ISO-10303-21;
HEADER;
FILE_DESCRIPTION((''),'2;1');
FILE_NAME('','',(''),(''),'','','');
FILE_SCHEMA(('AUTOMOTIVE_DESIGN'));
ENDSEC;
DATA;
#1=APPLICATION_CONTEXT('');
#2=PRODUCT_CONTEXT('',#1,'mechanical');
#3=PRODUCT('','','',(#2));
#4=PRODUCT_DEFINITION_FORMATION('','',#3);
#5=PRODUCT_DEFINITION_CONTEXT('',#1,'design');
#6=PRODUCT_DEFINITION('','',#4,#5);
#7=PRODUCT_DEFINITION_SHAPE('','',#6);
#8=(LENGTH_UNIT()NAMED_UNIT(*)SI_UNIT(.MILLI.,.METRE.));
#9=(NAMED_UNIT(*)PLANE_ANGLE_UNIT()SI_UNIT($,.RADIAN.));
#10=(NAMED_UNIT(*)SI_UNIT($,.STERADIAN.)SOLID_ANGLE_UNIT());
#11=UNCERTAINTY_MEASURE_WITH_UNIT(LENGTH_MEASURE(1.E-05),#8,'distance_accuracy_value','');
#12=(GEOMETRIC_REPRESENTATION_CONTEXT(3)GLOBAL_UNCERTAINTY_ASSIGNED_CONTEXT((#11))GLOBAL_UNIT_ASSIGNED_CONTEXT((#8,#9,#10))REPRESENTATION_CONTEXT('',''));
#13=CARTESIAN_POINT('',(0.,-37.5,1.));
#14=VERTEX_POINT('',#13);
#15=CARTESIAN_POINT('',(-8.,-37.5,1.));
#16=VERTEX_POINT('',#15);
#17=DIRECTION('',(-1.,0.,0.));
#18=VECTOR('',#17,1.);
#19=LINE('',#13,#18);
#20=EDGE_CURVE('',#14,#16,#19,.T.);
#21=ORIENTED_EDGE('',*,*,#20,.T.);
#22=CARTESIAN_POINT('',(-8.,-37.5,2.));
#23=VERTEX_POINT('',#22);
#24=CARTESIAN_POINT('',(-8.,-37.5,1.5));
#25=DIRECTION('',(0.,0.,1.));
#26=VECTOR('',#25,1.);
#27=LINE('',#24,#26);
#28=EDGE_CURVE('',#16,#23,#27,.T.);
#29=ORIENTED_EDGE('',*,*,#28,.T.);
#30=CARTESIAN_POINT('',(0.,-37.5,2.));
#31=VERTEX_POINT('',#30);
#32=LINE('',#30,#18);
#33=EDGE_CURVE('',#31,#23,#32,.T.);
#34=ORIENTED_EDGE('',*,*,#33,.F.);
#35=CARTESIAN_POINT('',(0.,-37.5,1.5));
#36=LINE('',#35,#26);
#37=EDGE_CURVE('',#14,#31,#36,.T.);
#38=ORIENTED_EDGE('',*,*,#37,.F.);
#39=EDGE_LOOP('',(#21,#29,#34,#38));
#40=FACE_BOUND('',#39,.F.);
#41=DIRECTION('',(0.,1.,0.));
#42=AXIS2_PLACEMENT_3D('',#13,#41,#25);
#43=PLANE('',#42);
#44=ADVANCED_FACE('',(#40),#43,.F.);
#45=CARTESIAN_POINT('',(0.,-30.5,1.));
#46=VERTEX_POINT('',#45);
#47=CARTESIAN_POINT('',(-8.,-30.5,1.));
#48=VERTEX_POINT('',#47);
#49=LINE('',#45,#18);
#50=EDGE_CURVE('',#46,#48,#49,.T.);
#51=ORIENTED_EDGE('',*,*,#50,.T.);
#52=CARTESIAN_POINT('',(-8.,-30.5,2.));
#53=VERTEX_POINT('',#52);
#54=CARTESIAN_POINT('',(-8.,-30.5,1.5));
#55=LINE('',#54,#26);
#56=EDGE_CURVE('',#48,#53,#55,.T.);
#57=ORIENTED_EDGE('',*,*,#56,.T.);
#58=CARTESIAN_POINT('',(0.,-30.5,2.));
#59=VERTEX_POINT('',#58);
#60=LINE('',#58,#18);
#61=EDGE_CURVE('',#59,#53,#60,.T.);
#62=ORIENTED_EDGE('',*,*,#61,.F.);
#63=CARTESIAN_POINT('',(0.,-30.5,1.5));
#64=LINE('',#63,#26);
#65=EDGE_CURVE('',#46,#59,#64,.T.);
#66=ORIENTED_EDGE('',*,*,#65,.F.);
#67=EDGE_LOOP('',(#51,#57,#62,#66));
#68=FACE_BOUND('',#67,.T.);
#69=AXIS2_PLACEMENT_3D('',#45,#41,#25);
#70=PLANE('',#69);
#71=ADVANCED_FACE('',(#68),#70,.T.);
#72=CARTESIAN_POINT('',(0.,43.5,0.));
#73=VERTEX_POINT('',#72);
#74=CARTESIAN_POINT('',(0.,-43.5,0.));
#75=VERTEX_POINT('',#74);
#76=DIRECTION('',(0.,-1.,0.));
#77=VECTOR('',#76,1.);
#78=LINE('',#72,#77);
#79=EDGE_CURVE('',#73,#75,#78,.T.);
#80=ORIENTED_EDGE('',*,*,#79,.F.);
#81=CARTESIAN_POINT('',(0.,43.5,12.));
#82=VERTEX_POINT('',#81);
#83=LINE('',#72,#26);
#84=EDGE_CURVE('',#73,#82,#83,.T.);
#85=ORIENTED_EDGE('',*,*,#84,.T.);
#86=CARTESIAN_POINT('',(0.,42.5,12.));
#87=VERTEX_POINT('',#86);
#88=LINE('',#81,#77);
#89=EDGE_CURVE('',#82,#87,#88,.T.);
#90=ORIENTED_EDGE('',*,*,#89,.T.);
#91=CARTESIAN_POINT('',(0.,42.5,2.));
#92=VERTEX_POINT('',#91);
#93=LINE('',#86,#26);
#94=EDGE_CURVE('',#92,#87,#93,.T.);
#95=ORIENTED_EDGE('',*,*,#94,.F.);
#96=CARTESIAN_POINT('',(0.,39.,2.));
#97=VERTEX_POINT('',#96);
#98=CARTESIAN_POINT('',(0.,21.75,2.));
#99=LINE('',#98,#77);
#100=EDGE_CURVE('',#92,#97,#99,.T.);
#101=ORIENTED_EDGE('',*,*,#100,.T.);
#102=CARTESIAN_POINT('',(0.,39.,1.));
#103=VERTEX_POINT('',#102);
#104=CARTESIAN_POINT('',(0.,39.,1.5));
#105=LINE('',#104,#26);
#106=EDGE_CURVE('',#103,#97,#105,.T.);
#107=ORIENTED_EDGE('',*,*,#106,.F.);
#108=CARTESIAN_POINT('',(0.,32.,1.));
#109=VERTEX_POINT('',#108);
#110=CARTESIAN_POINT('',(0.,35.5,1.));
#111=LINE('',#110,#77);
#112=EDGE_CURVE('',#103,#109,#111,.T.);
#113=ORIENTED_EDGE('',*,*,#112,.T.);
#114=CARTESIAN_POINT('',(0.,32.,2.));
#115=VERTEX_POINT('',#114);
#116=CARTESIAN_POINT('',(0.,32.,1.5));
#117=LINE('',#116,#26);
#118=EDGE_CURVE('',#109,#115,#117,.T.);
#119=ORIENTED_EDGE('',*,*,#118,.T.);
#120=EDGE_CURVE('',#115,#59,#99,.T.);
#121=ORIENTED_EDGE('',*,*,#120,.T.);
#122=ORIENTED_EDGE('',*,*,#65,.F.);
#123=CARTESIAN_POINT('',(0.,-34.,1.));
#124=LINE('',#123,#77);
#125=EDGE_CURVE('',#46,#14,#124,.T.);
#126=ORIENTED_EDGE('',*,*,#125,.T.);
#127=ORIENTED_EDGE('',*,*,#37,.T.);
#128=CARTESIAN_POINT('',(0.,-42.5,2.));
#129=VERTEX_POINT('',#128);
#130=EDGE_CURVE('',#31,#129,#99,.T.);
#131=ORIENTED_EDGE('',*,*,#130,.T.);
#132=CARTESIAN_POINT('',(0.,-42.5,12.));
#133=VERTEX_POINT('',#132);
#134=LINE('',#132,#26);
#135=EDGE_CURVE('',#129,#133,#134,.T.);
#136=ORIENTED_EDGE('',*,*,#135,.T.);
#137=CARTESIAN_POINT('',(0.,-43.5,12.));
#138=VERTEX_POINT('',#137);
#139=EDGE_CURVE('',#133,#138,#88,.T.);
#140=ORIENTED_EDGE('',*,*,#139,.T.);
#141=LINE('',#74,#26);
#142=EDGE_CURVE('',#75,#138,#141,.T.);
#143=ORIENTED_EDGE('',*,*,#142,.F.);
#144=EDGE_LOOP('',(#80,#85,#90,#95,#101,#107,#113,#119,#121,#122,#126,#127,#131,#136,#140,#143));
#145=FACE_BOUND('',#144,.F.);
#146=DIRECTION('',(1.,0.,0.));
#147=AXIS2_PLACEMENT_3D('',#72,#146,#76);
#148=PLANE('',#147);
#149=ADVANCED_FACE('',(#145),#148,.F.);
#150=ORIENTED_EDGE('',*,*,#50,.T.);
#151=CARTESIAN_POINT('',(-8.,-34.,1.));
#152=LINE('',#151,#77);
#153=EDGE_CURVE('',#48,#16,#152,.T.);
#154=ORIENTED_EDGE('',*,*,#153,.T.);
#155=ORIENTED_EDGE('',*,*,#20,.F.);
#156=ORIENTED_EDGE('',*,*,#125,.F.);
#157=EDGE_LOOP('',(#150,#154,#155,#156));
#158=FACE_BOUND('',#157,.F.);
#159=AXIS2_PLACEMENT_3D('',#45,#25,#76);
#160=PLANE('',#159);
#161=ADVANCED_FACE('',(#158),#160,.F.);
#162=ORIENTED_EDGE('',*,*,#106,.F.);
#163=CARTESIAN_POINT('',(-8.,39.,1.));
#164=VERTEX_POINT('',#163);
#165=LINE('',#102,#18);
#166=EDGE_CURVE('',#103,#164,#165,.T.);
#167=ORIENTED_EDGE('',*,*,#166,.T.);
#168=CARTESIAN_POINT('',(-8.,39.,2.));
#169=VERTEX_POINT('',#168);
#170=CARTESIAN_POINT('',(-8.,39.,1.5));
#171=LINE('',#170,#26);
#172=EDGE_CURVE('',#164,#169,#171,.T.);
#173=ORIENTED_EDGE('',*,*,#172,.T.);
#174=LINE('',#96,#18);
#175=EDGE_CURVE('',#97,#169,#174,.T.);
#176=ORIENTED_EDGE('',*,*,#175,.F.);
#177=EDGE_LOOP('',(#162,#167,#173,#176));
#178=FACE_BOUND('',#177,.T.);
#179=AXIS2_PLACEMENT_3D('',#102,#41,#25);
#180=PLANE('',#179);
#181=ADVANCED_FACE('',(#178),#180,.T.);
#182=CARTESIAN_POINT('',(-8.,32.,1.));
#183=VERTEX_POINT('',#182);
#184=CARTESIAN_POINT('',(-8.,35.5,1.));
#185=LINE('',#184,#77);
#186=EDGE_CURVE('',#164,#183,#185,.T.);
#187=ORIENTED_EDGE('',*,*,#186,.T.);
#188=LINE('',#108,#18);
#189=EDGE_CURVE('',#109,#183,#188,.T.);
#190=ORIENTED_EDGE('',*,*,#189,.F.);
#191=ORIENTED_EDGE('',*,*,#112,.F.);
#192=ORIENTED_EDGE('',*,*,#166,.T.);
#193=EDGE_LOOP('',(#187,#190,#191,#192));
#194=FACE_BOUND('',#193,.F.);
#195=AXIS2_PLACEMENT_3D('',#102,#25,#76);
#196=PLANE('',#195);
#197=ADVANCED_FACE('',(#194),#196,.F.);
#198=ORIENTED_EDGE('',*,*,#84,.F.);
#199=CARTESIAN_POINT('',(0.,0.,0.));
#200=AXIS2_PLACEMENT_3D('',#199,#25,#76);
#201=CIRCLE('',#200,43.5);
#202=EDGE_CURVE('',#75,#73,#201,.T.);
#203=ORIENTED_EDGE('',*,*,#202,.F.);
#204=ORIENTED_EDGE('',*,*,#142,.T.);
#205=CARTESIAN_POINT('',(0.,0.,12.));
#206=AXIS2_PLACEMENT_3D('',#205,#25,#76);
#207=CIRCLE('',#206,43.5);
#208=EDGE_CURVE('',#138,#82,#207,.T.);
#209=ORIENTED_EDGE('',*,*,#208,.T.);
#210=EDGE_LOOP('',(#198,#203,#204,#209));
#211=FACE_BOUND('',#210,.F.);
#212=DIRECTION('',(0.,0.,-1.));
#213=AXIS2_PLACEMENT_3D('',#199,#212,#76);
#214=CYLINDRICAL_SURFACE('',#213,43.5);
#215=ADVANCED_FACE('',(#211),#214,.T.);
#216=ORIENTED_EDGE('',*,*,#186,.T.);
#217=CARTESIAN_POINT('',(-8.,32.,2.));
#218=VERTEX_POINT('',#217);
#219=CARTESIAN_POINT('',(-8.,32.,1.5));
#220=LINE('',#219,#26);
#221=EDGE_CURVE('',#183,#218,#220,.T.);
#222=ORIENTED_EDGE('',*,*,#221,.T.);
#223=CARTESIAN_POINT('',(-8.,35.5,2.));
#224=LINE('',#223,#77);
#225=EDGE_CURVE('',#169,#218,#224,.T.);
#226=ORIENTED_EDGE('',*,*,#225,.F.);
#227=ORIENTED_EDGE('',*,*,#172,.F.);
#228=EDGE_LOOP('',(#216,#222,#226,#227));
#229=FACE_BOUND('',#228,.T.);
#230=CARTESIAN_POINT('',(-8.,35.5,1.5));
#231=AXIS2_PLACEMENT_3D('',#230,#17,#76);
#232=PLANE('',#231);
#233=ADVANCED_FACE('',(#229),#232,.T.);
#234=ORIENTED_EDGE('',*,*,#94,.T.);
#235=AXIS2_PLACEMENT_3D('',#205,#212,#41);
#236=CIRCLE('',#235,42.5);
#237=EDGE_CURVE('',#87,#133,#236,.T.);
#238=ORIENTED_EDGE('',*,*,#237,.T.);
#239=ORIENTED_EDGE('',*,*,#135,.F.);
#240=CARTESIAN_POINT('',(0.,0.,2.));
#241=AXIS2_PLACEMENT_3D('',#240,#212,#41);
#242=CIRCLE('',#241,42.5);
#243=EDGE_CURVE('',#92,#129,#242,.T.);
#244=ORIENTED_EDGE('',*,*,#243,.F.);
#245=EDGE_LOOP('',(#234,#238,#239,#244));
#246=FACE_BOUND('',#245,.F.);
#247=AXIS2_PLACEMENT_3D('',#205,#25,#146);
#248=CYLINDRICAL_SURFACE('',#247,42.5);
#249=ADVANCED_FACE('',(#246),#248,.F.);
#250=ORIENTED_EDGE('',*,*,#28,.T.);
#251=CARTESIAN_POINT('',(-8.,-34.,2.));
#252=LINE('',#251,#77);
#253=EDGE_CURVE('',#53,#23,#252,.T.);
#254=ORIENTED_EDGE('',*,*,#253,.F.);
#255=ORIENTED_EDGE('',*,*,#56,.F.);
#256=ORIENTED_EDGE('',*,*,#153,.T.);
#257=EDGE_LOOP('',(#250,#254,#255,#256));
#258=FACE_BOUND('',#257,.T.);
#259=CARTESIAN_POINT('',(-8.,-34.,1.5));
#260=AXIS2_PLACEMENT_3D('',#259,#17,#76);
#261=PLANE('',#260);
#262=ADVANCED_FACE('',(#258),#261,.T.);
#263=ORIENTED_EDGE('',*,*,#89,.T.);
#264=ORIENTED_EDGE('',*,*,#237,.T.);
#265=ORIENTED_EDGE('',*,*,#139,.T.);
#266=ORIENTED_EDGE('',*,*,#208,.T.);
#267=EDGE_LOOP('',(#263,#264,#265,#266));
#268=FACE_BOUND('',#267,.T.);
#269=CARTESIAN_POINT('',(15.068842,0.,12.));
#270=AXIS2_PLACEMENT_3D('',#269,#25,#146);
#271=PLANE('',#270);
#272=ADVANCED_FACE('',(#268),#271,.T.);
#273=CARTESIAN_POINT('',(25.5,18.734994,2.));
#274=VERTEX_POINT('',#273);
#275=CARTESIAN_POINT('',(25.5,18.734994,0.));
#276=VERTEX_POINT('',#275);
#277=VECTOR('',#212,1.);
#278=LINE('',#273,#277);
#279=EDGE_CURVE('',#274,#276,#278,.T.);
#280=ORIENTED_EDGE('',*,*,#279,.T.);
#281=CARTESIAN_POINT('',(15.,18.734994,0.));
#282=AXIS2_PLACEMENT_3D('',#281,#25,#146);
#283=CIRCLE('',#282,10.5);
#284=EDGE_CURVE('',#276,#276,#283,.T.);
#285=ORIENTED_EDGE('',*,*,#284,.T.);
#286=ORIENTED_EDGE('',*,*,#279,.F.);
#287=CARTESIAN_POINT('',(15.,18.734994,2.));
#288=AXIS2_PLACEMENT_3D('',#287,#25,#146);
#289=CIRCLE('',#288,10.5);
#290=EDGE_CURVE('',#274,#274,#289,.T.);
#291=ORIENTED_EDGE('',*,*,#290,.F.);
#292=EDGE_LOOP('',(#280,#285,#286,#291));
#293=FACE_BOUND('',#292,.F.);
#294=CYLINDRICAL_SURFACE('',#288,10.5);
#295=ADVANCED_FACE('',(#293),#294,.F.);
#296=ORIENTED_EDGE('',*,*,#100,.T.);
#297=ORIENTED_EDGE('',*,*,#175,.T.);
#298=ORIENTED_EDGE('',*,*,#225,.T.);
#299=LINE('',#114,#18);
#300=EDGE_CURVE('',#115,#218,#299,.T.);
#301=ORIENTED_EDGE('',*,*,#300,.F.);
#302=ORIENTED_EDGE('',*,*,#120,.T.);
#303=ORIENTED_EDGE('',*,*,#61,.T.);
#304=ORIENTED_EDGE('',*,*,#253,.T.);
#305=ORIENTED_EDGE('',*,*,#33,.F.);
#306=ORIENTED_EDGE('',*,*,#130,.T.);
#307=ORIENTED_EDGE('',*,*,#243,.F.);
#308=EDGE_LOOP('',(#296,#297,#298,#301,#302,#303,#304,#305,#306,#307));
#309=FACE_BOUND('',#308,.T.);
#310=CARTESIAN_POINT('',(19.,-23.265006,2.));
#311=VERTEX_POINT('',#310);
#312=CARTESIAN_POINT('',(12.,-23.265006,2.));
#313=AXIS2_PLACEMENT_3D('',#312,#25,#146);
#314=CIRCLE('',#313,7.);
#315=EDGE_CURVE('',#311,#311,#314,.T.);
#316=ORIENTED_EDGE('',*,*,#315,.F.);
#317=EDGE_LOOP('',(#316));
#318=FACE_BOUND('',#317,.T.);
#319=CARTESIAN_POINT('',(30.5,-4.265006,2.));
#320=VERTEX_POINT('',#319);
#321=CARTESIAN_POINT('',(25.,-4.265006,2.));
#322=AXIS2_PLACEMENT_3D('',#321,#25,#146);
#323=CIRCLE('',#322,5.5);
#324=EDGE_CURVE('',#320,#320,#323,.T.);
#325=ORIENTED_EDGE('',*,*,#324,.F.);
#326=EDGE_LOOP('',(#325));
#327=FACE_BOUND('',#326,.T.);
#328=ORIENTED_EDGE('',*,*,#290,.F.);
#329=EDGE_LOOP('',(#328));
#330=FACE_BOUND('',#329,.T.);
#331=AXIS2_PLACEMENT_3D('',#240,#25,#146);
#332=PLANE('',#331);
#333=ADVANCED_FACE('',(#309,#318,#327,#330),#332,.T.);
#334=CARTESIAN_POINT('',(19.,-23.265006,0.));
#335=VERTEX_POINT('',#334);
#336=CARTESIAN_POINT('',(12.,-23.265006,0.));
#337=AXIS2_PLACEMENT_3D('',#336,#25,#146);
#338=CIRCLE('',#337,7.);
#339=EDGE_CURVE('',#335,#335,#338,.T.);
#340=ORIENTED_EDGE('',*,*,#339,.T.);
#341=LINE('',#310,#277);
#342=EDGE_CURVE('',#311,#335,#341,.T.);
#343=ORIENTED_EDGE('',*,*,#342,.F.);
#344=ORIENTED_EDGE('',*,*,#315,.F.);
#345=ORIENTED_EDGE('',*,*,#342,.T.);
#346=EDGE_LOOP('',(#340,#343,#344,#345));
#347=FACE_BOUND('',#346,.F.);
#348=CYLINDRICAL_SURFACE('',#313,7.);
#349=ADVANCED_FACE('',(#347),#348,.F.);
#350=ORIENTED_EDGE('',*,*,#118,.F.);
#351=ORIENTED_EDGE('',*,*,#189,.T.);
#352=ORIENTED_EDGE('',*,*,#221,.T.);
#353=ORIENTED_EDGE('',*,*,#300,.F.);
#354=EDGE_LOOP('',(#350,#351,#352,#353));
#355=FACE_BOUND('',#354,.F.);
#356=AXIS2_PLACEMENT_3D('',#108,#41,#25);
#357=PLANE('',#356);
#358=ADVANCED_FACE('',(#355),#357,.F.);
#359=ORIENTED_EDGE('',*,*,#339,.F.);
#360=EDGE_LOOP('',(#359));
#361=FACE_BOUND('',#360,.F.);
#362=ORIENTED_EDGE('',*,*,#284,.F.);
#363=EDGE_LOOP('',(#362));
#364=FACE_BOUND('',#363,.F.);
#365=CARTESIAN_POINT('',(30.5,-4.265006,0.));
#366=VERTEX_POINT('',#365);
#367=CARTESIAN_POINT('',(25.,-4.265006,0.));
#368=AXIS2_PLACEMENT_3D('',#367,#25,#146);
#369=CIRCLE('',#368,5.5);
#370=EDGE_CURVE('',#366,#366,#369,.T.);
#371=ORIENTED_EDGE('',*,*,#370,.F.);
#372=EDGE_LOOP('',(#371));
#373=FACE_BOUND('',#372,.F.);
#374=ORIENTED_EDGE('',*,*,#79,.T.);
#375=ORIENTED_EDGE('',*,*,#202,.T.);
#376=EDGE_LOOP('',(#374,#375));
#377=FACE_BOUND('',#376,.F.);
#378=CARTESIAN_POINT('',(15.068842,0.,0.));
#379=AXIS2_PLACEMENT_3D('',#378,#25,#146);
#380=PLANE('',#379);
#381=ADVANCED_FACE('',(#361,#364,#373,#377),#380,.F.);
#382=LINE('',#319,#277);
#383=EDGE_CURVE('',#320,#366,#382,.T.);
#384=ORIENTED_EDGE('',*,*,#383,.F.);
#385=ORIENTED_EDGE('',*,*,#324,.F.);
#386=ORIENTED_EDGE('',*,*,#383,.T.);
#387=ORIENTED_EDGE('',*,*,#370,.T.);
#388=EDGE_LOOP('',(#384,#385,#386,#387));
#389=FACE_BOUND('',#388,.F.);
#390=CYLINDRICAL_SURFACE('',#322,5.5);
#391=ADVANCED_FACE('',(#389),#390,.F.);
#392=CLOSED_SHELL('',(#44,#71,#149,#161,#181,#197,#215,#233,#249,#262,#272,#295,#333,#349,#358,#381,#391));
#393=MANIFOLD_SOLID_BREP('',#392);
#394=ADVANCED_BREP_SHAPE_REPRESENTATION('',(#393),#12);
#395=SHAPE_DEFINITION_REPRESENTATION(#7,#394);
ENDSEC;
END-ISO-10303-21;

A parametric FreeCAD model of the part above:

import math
import FreeCAD as App
import Part
import Sketcher

V = App.Vector
Q = App.Units.Quantity


def add_polygon(sketch, points):
    """Adds a closed chain of lines whose ends are joined by coincident constraints."""
    first, n = sketch.GeometryCount, len(points)
    for a, b in zip(points, points[1:] + points[:1]):
        sketch.addGeometry(Part.LineSegment(App.Vector(*a, 0), App.Vector(*b, 0)), False)
    for i in range(n):
        sketch.addConstraint(Sketcher.Constraint("Coincident", first + i, 2, first + (i + 1) % n, 1))

doc = App.newDocument("Part")
params = doc.addObject("Spreadsheet::Sheet", "Params")
for row, (alias, value) in enumerate([
    ("sketch1_radius", "43.5 mm"),
    ("pad1_length", "12 mm"),
    ("sketch2_diameter", "85 mm"),
    ("pocket1_length", "10 mm"),
    ("sketch3_diameter", "21 mm"),
    ("sketch3_diameter2", "11 mm"),
    ("sketch3_diameter3", "14 mm"),
    ("sketch4_width", "7 mm"),
    ("sketch4_height", "1 mm"),
    ("pad2_length", "8 mm"),
], start=1):
    params.set(f"A{row}", alias)
    params.set(f"B{row}", "=" + value)
    params.setAlias(f"B{row}", alias)

body = doc.addObject("PartDesign::Body", "Body")

# Sketch on XY plane
sketch1 = body.newObject("Sketcher::SketchObject", "Sketch")
sketch1.AttachmentSupport = (doc.getObject("XY_Plane"), [""])
sketch1.MapMode = "FlatFace"
sketch1.addGeometry(Part.LineSegment(V(0, 43.5, 0), V(0, -43.5, 0)), False)
sketch1.addGeometry(Part.ArcOfCircle(Part.Circle(V(0, 0, 0), V(0, 0, 1), 43.5), math.radians(-90), math.radians(90)), False)
sketch1.addConstraint(Sketcher.Constraint("Coincident", 0, 1, 1, 2))
sketch1.addConstraint(Sketcher.Constraint("Coincident", 1, 1, 0, 2))
sketch1.addConstraint(Sketcher.Constraint("Vertical", 0))
sketch1.addConstraint(Sketcher.Constraint("Coincident", 1, 3, -1, 1))
sketch1.addConstraint(Sketcher.Constraint("PointOnObject", 0, 1, -2))
sketch1.addConstraint(Sketcher.Constraint("Radius", 1, Q("43.5 mm")))
sketch1.setExpression("Constraints[5]", "Params.sketch1_radius")
pad1 = body.newObject("PartDesign::Pad", "Pad")
pad1.Profile = sketch1
pad1.setExpression("Length", "Params.pad1_length")

# Sketch on XY plane
sketch2 = body.newObject("Sketcher::SketchObject", "Sketch001")
sketch2.AttachmentSupport = (doc.getObject("XY_Plane"), [""])
sketch2.MapMode = "FlatFace"
sketch2.AttachmentOffset = App.Placement(V(0, 0, 12), App.Rotation())
sketch2.addGeometry(Part.Circle(V(0, 0, 0), V(0, 0, 1), 42.5), False)
sketch2.addConstraint(Sketcher.Constraint("Coincident", 0, 3, -1, 1))
sketch2.addConstraint(Sketcher.Constraint("Diameter", 0, Q("85 mm")))
sketch2.setExpression("Constraints[1]", "Params.sketch2_diameter")
pocket1 = body.newObject("PartDesign::Pocket", "Pocket")
pocket1.Profile = sketch2
pocket1.setExpression("Length", "Params.pocket1_length")

# Sketch on XY plane
sketch3 = body.newObject("Sketcher::SketchObject", "Sketch002")
sketch3.AttachmentSupport = (doc.getObject("XY_Plane"), [""])
sketch3.MapMode = "FlatFace"
sketch3.AttachmentOffset = App.Placement(V(0, 0, 2), App.Rotation())
sketch3.addGeometry(Part.Circle(V(-15, 18.734994, 0), V(0, 0, 1), 10.5), False)
sketch3.addGeometry(Part.Circle(V(-25, -4.265006, 0), V(0, 0, 1), 5.5), False)
sketch3.addGeometry(Part.Circle(V(-12, -23.265006, 0), V(0, 0, 1), 7), False)
sketch3.addGeometry(Part.Circle(V(15, 18.734994, 0), V(0, 0, 1), 10.5), False)
sketch3.addGeometry(Part.Circle(V(25, -4.265006, 0), V(0, 0, 1), 5.5), False)
sketch3.addGeometry(Part.Circle(V(12, -23.265006, 0), V(0, 0, 1), 7), False)
sketch3.addConstraint(Sketcher.Constraint("Equal", 0, 3))
sketch3.addConstraint(Sketcher.Constraint("Equal", 1, 4))
sketch3.addConstraint(Sketcher.Constraint("Equal", 2, 5))
sketch3.addConstraint(Sketcher.Constraint("Symmetric", 0, 3, 3, 3, -2))
sketch3.addConstraint(Sketcher.Constraint("Symmetric", 1, 3, 4, 3, -2))
sketch3.addConstraint(Sketcher.Constraint("Symmetric", 2, 3, 5, 3, -2))
sketch3.addConstraint(Sketcher.Constraint("Diameter", 0, Q("21 mm")))
sketch3.addConstraint(Sketcher.Constraint("Diameter", 1, Q("11 mm")))
sketch3.addConstraint(Sketcher.Constraint("Diameter", 2, Q("14 mm")))
sketch3.addConstraint(Sketcher.Constraint("DistanceX", 0, 3, -1, 1, Q("15 mm")))
sketch3.addConstraint(Sketcher.Constraint("DistanceX", 1, 3, -1, 1, Q("25 mm")))
sketch3.addConstraint(Sketcher.Constraint("DistanceX", 2, 3, -1, 1, Q("12 mm")))
sketch3.addConstraint(Sketcher.Constraint("DistanceY", 1, 3, 0, 3, Q("23 mm")))
sketch3.addConstraint(Sketcher.Constraint("DistanceY", 2, 3, 1, 3, Q("19 mm")))
sketch3.addConstraint(Sketcher.Constraint("DistanceY", -1, 1, 0, 3, Q("18.734994 mm")))
sketch3.setExpression("Constraints[6]", "Params.sketch3_diameter")
sketch3.setExpression("Constraints[7]", "Params.sketch3_diameter2")
sketch3.setExpression("Constraints[8]", "Params.sketch3_diameter3")
pocket2 = body.newObject("PartDesign::Pocket", "Pocket001")
pocket2.Profile = sketch3
pocket2.Type = "ThroughAll"

# Sketch on YZ plane
sketch4 = body.newObject("Sketcher::SketchObject", "Sketch003")
sketch4.AttachmentSupport = (doc.getObject("YZ_Plane"), [""])
sketch4.MapMode = "FlatFace"
add_polygon(sketch4, [(39, 2), (39, 1), (32, 1), (32, 2)])  # lines 0-3
add_polygon(sketch4, [(-30.5, 2), (-30.5, 1), (-37.5, 1), (-37.5, 2)])  # lines 4-7
sketch4.addConstraint(Sketcher.Constraint("Vertical", 0))
sketch4.addConstraint(Sketcher.Constraint("Horizontal", 1))
sketch4.addConstraint(Sketcher.Constraint("Vertical", 2))
sketch4.addConstraint(Sketcher.Constraint("Horizontal", 3))
sketch4.addConstraint(Sketcher.Constraint("Vertical", 4))
sketch4.addConstraint(Sketcher.Constraint("Horizontal", 5))
sketch4.addConstraint(Sketcher.Constraint("Vertical", 6))
sketch4.addConstraint(Sketcher.Constraint("Horizontal", 7))
sketch4.addConstraint(Sketcher.Constraint("Horizontal", 1, 2, 4, 2))
sketch4.addConstraint(Sketcher.Constraint("Horizontal", 3, 2, 6, 2))
sketch4.addConstraint(Sketcher.Constraint("Equal", 3, 5))
sketch4.addConstraint(Sketcher.Constraint("DistanceX", 1, 2, 1, 1, Q("7 mm")))
sketch4.addConstraint(Sketcher.Constraint("DistanceY", 0, 2, 0, 1, Q("1 mm")))
sketch4.addConstraint(Sketcher.Constraint("DistanceX", -1, 1, 0, 2, Q("39 mm")))
sketch4.addConstraint(Sketcher.Constraint("DistanceY", -1, 1, 0, 2, Q("1 mm")))
sketch4.addConstraint(Sketcher.Constraint("DistanceX", 4, 2, -1, 1, Q("30.5 mm")))
sketch4.setExpression("Constraints[19]", "Params.sketch4_width")
sketch4.setExpression("Constraints[20]", "Params.sketch4_height")
pad2 = body.newObject("PartDesign::Pad", "Pad001")
pad2.Profile = sketch4
pad2.setExpression("Length", "Params.pad2_length")
pad2.Reversed = True

doc.recompute()
